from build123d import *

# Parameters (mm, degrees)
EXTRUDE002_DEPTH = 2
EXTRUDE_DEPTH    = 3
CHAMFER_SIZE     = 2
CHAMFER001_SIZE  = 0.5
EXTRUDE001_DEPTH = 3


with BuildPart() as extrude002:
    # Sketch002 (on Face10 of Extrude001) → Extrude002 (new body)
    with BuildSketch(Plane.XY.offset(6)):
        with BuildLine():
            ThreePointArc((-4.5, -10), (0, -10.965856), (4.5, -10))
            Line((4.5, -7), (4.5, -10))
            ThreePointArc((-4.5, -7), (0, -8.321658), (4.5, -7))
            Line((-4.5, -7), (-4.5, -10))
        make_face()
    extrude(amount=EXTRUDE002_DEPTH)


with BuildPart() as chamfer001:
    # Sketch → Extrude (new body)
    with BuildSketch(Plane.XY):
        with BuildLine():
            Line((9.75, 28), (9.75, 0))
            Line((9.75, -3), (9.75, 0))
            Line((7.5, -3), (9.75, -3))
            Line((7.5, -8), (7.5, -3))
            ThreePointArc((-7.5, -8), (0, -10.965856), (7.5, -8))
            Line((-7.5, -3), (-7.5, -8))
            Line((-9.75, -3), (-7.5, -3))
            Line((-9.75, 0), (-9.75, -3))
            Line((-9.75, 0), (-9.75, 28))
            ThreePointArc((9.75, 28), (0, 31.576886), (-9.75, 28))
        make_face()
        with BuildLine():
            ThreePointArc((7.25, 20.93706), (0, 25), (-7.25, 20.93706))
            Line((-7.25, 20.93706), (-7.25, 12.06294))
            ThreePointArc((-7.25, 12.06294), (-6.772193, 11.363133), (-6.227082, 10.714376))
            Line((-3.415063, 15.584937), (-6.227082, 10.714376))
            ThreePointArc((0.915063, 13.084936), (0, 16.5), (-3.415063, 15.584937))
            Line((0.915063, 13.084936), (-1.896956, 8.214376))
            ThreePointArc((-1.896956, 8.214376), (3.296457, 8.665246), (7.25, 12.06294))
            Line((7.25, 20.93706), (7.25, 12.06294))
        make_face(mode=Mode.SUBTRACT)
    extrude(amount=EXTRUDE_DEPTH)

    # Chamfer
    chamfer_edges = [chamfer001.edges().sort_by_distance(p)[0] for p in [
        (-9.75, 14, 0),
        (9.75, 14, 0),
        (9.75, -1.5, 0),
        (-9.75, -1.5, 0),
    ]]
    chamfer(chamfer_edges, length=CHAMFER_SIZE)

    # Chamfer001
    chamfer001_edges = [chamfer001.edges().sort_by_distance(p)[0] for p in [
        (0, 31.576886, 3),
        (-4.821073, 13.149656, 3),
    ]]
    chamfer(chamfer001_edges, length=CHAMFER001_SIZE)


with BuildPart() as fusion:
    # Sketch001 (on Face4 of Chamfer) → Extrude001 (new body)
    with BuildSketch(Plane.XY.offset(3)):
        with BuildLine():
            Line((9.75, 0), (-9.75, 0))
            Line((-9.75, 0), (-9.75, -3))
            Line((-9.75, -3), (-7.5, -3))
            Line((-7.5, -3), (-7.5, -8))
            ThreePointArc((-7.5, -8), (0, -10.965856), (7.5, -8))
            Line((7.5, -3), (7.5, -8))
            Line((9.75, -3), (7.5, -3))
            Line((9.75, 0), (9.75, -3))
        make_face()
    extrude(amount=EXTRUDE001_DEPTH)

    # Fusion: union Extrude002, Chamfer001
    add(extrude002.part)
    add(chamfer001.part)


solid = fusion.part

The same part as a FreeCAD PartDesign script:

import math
import FreeCAD as App
import Part
import Sketcher
Q = App.Units.Quantity


def edges_at(feature, points):
    """Names of the edges that pass closest to the given points."""
    edges = feature.Shape.Edges
    near = lambda p: min(range(len(edges)), key=lambda i: edges[i].distToShape(Part.Vertex(*p))[0])
    return sorted({f"Edge{near(p) + 1}" for p in points})

doc = App.newDocument("Part")
body = doc.addObject("PartDesign::Body", "Body")

sketch1 = doc.addObject("Sketcher::SketchObject", "Sketch")
body.addObject(sketch1)
sketch1.AttachmentSupport = (doc.XY_Plane, [""])
sketch1.MapMode = "FlatFace"
sketch1.AttachmentOffset = App.Placement(App.Vector(0, 0, 6), App.Rotation())
sketch1.addGeometry(Part.ArcOfCircle(Part.Circle(App.Vector(0, 0, 0), App.Vector(0, 0, 1), 11), math.radians(-114), math.radians(-66)), False)
sketch1.addGeometry(Part.LineSegment(App.Vector(4.5, -10, 0), App.Vector(4.5, -7, 0)), False)
sketch1.addGeometry(Part.ArcOfCircle(Part.Circle(App.Vector(0, 0, 0), App.Vector(0, 0, 1), 8.3), math.radians(-123), math.radians(-57)), False)
sketch1.addGeometry(Part.LineSegment(App.Vector(-4.5, -7, 0), App.Vector(-4.5, -10, 0)), False)
sketch1.addConstraint(Sketcher.Constraint("Coincident", 0, 2, 1, 1))
sketch1.addConstraint(Sketcher.Constraint("Coincident", 1, 2, 2, 2))
sketch1.addConstraint(Sketcher.Constraint("Coincident", 2, 1, 3, 1))
sketch1.addConstraint(Sketcher.Constraint("Coincident", 3, 2, 0, 1))
sketch1.addConstraint(Sketcher.Constraint("Vertical", 1))
sketch1.addConstraint(Sketcher.Constraint("Vertical", 3))
sketch1.addConstraint(Sketcher.Constraint("Coincident", 0, 3, -1, 1))
sketch1.addConstraint(Sketcher.Constraint("Coincident", 2, 3, -1, 1))
sketch1.addConstraint(Sketcher.Constraint("Horizontal", 1, 2, 2, 1))
sketch1.addConstraint(Sketcher.Constraint("DistanceY", 1, 1, 1, 2, Q("3 mm")))
sketch1.addConstraint(Sketcher.Constraint("DistanceY", 0, 2, -1, 1, Q("10 mm")))
sketch1.addConstraint(Sketcher.Constraint("DistanceX", 2, 1, 1, 2, Q("9 mm")))
pad1 = doc.addObject("PartDesign::Pad", "Pad")
body.addObject(pad1)
pad1.Profile = sketch1
pad1.Length = 2
body2 = doc.addObject("PartDesign::Body", "Body001")

sketch2 = doc.addObject("Sketcher::SketchObject", "Sketch001")
body2.addObject(sketch2)
sketch2.AttachmentSupport = (doc.getObject("XY_Plane001"), [""])
sketch2.MapMode = "FlatFace"
sketch2.addGeometry(Part.LineSegment(App.Vector(9.8, -3, 0), App.Vector(9.8, 28, 0)), False)
sketch2.addGeometry(Part.ArcOfCircle(Part.Circle(App.Vector(0, 16.5, 0), App.Vector(0, 0, 1), 15.1), math.radians(50), math.radians(130)), False)
sketch2.addGeometry(Part.LineSegment(App.Vector(-9.8, 28, 0), App.Vector(-9.8, -3, 0)), False)
sketch2.addGeometry(Part.LineSegment(App.Vector(-9.8, -3, 0), App.Vector(-7.5, -3, 0)), False)
sketch2.addGeometry(Part.LineSegment(App.Vector(-7.5, -3, 0), App.Vector(-7.5, -8, 0)), False)
sketch2.addGeometry(Part.ArcOfCircle(Part.Circle(App.Vector(0, 0, 0), App.Vector(0, 0, 1), 11), math.radians(-133), math.radians(-47)), False)
sketch2.addGeometry(Part.LineSegment(App.Vector(7.5, -8, 0), App.Vector(7.5, -3, 0)), False)
sketch2.addGeometry(Part.LineSegment(App.Vector(7.5, -3, 0), App.Vector(9.8, -3, 0)), False)
sketch2.addGeometry(Part.LineSegment(App.Vector(7.2, 20.9, 0), App.Vector(7.2, 12.1, 0)), False)
sketch2.addGeometry(Part.ArcOfCircle(Part.Circle(App.Vector(0, 16.5, 0), App.Vector(0, 0, 1), 8.5), math.radians(-103), math.radians(-31)), False)
sketch2.addGeometry(Part.LineSegment(App.Vector(-1.9, 8.2, 0), App.Vector(0.9, 13.1, 0)), False)
sketch2.addGeometry(Part.ArcOfCircle(Part.Circle(App.Vector(-1.2, 14.3, 0), App.Vector(0, 0, 1), 2.5), math.radians(-30), math.radians(150)), False)
sketch2.addGeometry(Part.LineSegment(App.Vector(-3.4, 15.6, 0), App.Vector(-6.2, 10.7, 0)), False)
sketch2.addGeometry(Part.ArcOfCircle(Part.Circle(App.Vector(0, 16.5, 0), App.Vector(0, 0, 1), 8.5), math.radians(-148.53), math.radians(-137.1)), False)
sketch2.addGeometry(Part.LineSegment(App.Vector(-7.2, 12.1, 0), App.Vector(-7.2, 20.9, 0)), False)
sketch2.addGeometry(Part.ArcOfCircle(Part.Circle(App.Vector(0, 16.5, 0), App.Vector(0, 0, 1), 8.5), math.radians(31), math.radians(149)), False)
sketch2.addConstraint(Sketcher.Constraint("Coincident", 0, 2, 1, 1))
sketch2.addConstraint(Sketcher.Constraint("Coincident", 1, 2, 2, 1))
sketch2.addConstraint(Sketcher.Constraint("Coincident", 2, 2, 3, 1))
sketch2.addConstraint(Sketcher.Constraint("Coincident", 3, 2, 4, 1))
sketch2.addConstraint(Sketcher.Constraint("Coincident", 4, 2, 5, 1))
sketch2.addConstraint(Sketcher.Constraint("Coincident", 5, 2, 6, 1))
sketch2.addConstraint(Sketcher.Constraint("Coincident", 6, 2, 7, 1))
sketch2.addConstraint(Sketcher.Constraint("Coincident", 7, 2, 0, 1))
sketch2.addConstraint(Sketcher.Constraint("Coincident", 8, 2, 9, 2))
sketch2.addConstraint(Sketcher.Constraint("Coincident", 9, 1, 10, 1))
sketch2.addConstraint(Sketcher.Constraint("Tangent", 10, 2, 11, 1))
sketch2.addConstraint(Sketcher.Constraint("Tangent", 11, 2, 12, 1))
sketch2.addConstraint(Sketcher.Constraint("Coincident", 12, 2, 13, 2))
sketch2.addConstraint(Sketcher.Constraint("Coincident", 13, 1, 14, 1))
sketch2.addConstraint(Sketcher.Constraint("Coincident", 14, 2, 15, 2))
sketch2.addConstraint(Sketcher.Constraint("Coincident", 15, 1, 8, 1))
sketch2.addConstraint(Sketcher.Constraint("Vertical", 0))
sketch2.addConstraint(Sketcher.Constraint("Vertical", 2))
sketch2.addConstraint(Sketcher.Constraint("Horizontal", 3))
sketch2.addConstraint(Sketcher.Constraint("Vertical", 4))
sketch2.addConstraint(Sketcher.Constraint("Vertical", 6))
sketch2.addConstraint(Sketcher.Constraint("Horizontal", 7))
sketch2.addConstraint(Sketcher.Constraint("Vertical", 8))
sketch2.addConstraint(Sketcher.Constraint("Vertical", 14))
sketch2.addConstraint(Sketcher.Constraint("Coincident", 5, 3, -1, 1))
sketch2.addConstraint(Sketcher.Constraint("Coincident", 9, 3, 1, 3))
sketch2.addConstraint(Sketcher.Constraint("Coincident", 15, 3, 1, 3))
sketch2.addConstraint(Sketcher.Constraint("Equal", 9, 15))
sketch2.addConstraint(Sketcher.Constraint("Symmetric", 0, 2, 1, 2, -2))
sketch2.addConstraint(Sketcher.Constraint("Symmetric", 3, 2, 6, 2, -2))
sketch2.addConstraint(Sketcher.Constraint("Symmetric", 8, 2, 13, 1, -2))
sketch2.addConstraint(Sketcher.Constraint("Parallel", 10, 12))
sketch2.addConstraint(Sketcher.Constraint("Equal", 10, 12))
sketch2.addConstraint(Sketcher.Constraint("Radius", 9, Q("8.500002 mm")))
sketch2.addConstraint(Sketcher.Constraint("Radius", 11, Q("2.5 mm")))
sketch2.addConstraint(Sketcher.Constraint("DistanceY", 0, 1, 0, 2, Q("31 mm")))
sketch2.addConstraint(Sketcher.Constraint("DistanceY", 4, 2, 4, 1, Q("5 mm")))
sketch2.addConstraint(Sketcher.Constraint("Angle", 10, Q("60.000001 deg")))
sketch2.addConstraint(Sketcher.Constraint("DistanceY", -1, 1, 0, 2, Q("28 mm")))
sketch2.addConstraint(Sketcher.Constraint("DistanceX", 11, 3, 0, 2, Q("11 mm")))
sketch2.addConstraint(Sketcher.Constraint("DistanceX", 4, 2, 5, 2, Q("15 mm")))
sketch2.addConstraint(Sketcher.Constraint("DistanceX", 13, 1, 11, 3, Q("6 mm")))
sketch2.addConstraint(Sketcher.Constraint("DistanceX", 3, 1, 3, 2, Q("2.25 mm")))
sketch2.addConstraint(Sketcher.Constraint("DistanceY", -1, 1, 1, 3, Q("16.499999 mm")))
sketch2.addConstraint(Sketcher.Constraint("Radius", 13, Q("8.499974 mm")))
sketch2.addConstraint(Sketcher.Constraint("Distance", 10, Q("5.624038 mm")))
pad2 = doc.addObject("PartDesign::Pad", "Pad001")
body2.addObject(pad2)
pad2.Profile = sketch2
pad2.Length = 3
doc.recompute()

chamfer = doc.addObject("PartDesign::Chamfer", "Chamfer")
body2.addObject(chamfer)
chamfer.Base = (pad2, edges_at(pad2, [
    (-9.75, 12.5, 0),
    (9.75, 12.5, 0),
    (9.75, 12.5, 0),
    (-9.75, 12.5, 0),
]))
chamfer.Size = 2
doc.recompute()

chamfer2 = doc.addObject("PartDesign::Chamfer", "Chamfer001")
body2.addObject(chamfer2)
chamfer2.Base = (chamfer, edges_at(chamfer, [(0, 31.577, 3), (-4.821, 13.15, 3)]))
chamfer2.Size = 0.5
body3 = doc.addObject("PartDesign::Body", "Body002")

sketch3 = doc.addObject("Sketcher::SketchObject", "Sketch002")
body3.addObject(sketch3)
sketch3.AttachmentSupport = (doc.getObject("XY_Plane002"), [""])
sketch3.MapMode = "FlatFace"
sketch3.AttachmentOffset = App.Placement(App.Vector(0, 0, 3), App.Rotation())
sketch3.addGeometry(Part.LineSegment(App.Vector(9.8, 0, 0), App.Vector(-9.8, 0, 0)), False)
sketch3.addGeometry(Part.LineSegment(App.Vector(-9.8, 0, 0), App.Vector(-9.8, -3, 0)), False)
sketch3.addGeometry(Part.LineSegment(App.Vector(-9.8, -3, 0), App.Vector(-7.5, -3, 0)), False)
sketch3.addGeometry(Part.LineSegment(App.Vector(-7.5, -3, 0), App.Vector(-7.5, -8, 0)), False)
sketch3.addGeometry(Part.ArcOfCircle(Part.Circle(App.Vector(0, 0, 0), App.Vector(0, 0, 1), 11), math.radians(-133), math.radians(-47)), False)
sketch3.addGeometry(Part.LineSegment(App.Vector(7.5, -8, 0), App.Vector(7.5, -3, 0)), False)
sketch3.addGeometry(Part.LineSegment(App.Vector(7.5, -3, 0), App.Vector(9.8, -3, 0)), False)
sketch3.addGeometry(Part.LineSegment(App.Vector(9.8, -3, 0), App.Vector(9.8, 0, 0)), False)
sketch3.addConstraint(Sketcher.Constraint("Coincident", 0, 2, 1, 1))
sketch3.addConstraint(Sketcher.Constraint("Coincident", 1, 2, 2, 1))
sketch3.addConstraint(Sketcher.Constraint("Coincident", 2, 2, 3, 1))
sketch3.addConstraint(Sketcher.Constraint("Coincident", 3, 2, 4, 1))
sketch3.addConstraint(Sketcher.Constraint("Coincident", 4, 2, 5, 1))
sketch3.addConstraint(Sketcher.Constraint("Coincident", 5, 2, 6, 1))
sketch3.addConstraint(Sketcher.Constraint("Coincident", 6, 2, 7, 1))
sketch3.addConstraint(Sketcher.Constraint("Coincident", 7, 2, 0, 1))
sketch3.addConstraint(Sketcher.Constraint("Horizontal", 0))
sketch3.addConstraint(Sketcher.Constraint("Vertical", 1))
sketch3.addConstraint(Sketcher.Constraint("Horizontal", 2))
sketch3.addConstraint(Sketcher.Constraint("Vertical", 3))
sketch3.addConstraint(Sketcher.Constraint("Vertical", 5))
sketch3.addConstraint(Sketcher.Constraint("Horizontal", 6))
sketch3.addConstraint(Sketcher.Constraint("Vertical", 7))
sketch3.addConstraint(Sketcher.Constraint("Coincident", 4, 3, -1, 1))
sketch3.addConstraint(Sketcher.Constraint("Symmetric", 0, 2, 7, 2, -1, 1))
sketch3.addConstraint(Sketcher.Constraint("Symmetric", 2, 2, 5, 2, -2))
sketch3.addConstraint(Sketcher.Constraint("DistanceY", 1, 2, 1, 1, Q("3 mm")))
sketch3.addConstraint(Sketcher.Constraint("DistanceY", 3, 2, 3, 1, Q("5 mm")))
sketch3.addConstraint(Sketcher.Constraint("DistanceX", 0, 2, 0, 1, Q("19.5 mm")))
sketch3.addConstraint(Sketcher.Constraint("DistanceX", 3, 2, 4, 2, Q("15 mm")))
pad3 = doc.addObject("PartDesign::Pad", "Pad002")
body3.addObject(pad3)
pad3.Profile = sketch3
pad3.Length = 3
doc.recompute()

boolean = doc.addObject("PartDesign::Boolean", "Boolean")
body3.addObject(boolean)
boolean.Type = "Fuse"
boolean.addObjects([body])
doc.recompute()

boolean2 = doc.addObject("PartDesign::Boolean", "Boolean001")
body3.addObject(boolean2)
boolean2.Type = "Fuse"
boolean2.addObjects([body2])

doc.recompute()
